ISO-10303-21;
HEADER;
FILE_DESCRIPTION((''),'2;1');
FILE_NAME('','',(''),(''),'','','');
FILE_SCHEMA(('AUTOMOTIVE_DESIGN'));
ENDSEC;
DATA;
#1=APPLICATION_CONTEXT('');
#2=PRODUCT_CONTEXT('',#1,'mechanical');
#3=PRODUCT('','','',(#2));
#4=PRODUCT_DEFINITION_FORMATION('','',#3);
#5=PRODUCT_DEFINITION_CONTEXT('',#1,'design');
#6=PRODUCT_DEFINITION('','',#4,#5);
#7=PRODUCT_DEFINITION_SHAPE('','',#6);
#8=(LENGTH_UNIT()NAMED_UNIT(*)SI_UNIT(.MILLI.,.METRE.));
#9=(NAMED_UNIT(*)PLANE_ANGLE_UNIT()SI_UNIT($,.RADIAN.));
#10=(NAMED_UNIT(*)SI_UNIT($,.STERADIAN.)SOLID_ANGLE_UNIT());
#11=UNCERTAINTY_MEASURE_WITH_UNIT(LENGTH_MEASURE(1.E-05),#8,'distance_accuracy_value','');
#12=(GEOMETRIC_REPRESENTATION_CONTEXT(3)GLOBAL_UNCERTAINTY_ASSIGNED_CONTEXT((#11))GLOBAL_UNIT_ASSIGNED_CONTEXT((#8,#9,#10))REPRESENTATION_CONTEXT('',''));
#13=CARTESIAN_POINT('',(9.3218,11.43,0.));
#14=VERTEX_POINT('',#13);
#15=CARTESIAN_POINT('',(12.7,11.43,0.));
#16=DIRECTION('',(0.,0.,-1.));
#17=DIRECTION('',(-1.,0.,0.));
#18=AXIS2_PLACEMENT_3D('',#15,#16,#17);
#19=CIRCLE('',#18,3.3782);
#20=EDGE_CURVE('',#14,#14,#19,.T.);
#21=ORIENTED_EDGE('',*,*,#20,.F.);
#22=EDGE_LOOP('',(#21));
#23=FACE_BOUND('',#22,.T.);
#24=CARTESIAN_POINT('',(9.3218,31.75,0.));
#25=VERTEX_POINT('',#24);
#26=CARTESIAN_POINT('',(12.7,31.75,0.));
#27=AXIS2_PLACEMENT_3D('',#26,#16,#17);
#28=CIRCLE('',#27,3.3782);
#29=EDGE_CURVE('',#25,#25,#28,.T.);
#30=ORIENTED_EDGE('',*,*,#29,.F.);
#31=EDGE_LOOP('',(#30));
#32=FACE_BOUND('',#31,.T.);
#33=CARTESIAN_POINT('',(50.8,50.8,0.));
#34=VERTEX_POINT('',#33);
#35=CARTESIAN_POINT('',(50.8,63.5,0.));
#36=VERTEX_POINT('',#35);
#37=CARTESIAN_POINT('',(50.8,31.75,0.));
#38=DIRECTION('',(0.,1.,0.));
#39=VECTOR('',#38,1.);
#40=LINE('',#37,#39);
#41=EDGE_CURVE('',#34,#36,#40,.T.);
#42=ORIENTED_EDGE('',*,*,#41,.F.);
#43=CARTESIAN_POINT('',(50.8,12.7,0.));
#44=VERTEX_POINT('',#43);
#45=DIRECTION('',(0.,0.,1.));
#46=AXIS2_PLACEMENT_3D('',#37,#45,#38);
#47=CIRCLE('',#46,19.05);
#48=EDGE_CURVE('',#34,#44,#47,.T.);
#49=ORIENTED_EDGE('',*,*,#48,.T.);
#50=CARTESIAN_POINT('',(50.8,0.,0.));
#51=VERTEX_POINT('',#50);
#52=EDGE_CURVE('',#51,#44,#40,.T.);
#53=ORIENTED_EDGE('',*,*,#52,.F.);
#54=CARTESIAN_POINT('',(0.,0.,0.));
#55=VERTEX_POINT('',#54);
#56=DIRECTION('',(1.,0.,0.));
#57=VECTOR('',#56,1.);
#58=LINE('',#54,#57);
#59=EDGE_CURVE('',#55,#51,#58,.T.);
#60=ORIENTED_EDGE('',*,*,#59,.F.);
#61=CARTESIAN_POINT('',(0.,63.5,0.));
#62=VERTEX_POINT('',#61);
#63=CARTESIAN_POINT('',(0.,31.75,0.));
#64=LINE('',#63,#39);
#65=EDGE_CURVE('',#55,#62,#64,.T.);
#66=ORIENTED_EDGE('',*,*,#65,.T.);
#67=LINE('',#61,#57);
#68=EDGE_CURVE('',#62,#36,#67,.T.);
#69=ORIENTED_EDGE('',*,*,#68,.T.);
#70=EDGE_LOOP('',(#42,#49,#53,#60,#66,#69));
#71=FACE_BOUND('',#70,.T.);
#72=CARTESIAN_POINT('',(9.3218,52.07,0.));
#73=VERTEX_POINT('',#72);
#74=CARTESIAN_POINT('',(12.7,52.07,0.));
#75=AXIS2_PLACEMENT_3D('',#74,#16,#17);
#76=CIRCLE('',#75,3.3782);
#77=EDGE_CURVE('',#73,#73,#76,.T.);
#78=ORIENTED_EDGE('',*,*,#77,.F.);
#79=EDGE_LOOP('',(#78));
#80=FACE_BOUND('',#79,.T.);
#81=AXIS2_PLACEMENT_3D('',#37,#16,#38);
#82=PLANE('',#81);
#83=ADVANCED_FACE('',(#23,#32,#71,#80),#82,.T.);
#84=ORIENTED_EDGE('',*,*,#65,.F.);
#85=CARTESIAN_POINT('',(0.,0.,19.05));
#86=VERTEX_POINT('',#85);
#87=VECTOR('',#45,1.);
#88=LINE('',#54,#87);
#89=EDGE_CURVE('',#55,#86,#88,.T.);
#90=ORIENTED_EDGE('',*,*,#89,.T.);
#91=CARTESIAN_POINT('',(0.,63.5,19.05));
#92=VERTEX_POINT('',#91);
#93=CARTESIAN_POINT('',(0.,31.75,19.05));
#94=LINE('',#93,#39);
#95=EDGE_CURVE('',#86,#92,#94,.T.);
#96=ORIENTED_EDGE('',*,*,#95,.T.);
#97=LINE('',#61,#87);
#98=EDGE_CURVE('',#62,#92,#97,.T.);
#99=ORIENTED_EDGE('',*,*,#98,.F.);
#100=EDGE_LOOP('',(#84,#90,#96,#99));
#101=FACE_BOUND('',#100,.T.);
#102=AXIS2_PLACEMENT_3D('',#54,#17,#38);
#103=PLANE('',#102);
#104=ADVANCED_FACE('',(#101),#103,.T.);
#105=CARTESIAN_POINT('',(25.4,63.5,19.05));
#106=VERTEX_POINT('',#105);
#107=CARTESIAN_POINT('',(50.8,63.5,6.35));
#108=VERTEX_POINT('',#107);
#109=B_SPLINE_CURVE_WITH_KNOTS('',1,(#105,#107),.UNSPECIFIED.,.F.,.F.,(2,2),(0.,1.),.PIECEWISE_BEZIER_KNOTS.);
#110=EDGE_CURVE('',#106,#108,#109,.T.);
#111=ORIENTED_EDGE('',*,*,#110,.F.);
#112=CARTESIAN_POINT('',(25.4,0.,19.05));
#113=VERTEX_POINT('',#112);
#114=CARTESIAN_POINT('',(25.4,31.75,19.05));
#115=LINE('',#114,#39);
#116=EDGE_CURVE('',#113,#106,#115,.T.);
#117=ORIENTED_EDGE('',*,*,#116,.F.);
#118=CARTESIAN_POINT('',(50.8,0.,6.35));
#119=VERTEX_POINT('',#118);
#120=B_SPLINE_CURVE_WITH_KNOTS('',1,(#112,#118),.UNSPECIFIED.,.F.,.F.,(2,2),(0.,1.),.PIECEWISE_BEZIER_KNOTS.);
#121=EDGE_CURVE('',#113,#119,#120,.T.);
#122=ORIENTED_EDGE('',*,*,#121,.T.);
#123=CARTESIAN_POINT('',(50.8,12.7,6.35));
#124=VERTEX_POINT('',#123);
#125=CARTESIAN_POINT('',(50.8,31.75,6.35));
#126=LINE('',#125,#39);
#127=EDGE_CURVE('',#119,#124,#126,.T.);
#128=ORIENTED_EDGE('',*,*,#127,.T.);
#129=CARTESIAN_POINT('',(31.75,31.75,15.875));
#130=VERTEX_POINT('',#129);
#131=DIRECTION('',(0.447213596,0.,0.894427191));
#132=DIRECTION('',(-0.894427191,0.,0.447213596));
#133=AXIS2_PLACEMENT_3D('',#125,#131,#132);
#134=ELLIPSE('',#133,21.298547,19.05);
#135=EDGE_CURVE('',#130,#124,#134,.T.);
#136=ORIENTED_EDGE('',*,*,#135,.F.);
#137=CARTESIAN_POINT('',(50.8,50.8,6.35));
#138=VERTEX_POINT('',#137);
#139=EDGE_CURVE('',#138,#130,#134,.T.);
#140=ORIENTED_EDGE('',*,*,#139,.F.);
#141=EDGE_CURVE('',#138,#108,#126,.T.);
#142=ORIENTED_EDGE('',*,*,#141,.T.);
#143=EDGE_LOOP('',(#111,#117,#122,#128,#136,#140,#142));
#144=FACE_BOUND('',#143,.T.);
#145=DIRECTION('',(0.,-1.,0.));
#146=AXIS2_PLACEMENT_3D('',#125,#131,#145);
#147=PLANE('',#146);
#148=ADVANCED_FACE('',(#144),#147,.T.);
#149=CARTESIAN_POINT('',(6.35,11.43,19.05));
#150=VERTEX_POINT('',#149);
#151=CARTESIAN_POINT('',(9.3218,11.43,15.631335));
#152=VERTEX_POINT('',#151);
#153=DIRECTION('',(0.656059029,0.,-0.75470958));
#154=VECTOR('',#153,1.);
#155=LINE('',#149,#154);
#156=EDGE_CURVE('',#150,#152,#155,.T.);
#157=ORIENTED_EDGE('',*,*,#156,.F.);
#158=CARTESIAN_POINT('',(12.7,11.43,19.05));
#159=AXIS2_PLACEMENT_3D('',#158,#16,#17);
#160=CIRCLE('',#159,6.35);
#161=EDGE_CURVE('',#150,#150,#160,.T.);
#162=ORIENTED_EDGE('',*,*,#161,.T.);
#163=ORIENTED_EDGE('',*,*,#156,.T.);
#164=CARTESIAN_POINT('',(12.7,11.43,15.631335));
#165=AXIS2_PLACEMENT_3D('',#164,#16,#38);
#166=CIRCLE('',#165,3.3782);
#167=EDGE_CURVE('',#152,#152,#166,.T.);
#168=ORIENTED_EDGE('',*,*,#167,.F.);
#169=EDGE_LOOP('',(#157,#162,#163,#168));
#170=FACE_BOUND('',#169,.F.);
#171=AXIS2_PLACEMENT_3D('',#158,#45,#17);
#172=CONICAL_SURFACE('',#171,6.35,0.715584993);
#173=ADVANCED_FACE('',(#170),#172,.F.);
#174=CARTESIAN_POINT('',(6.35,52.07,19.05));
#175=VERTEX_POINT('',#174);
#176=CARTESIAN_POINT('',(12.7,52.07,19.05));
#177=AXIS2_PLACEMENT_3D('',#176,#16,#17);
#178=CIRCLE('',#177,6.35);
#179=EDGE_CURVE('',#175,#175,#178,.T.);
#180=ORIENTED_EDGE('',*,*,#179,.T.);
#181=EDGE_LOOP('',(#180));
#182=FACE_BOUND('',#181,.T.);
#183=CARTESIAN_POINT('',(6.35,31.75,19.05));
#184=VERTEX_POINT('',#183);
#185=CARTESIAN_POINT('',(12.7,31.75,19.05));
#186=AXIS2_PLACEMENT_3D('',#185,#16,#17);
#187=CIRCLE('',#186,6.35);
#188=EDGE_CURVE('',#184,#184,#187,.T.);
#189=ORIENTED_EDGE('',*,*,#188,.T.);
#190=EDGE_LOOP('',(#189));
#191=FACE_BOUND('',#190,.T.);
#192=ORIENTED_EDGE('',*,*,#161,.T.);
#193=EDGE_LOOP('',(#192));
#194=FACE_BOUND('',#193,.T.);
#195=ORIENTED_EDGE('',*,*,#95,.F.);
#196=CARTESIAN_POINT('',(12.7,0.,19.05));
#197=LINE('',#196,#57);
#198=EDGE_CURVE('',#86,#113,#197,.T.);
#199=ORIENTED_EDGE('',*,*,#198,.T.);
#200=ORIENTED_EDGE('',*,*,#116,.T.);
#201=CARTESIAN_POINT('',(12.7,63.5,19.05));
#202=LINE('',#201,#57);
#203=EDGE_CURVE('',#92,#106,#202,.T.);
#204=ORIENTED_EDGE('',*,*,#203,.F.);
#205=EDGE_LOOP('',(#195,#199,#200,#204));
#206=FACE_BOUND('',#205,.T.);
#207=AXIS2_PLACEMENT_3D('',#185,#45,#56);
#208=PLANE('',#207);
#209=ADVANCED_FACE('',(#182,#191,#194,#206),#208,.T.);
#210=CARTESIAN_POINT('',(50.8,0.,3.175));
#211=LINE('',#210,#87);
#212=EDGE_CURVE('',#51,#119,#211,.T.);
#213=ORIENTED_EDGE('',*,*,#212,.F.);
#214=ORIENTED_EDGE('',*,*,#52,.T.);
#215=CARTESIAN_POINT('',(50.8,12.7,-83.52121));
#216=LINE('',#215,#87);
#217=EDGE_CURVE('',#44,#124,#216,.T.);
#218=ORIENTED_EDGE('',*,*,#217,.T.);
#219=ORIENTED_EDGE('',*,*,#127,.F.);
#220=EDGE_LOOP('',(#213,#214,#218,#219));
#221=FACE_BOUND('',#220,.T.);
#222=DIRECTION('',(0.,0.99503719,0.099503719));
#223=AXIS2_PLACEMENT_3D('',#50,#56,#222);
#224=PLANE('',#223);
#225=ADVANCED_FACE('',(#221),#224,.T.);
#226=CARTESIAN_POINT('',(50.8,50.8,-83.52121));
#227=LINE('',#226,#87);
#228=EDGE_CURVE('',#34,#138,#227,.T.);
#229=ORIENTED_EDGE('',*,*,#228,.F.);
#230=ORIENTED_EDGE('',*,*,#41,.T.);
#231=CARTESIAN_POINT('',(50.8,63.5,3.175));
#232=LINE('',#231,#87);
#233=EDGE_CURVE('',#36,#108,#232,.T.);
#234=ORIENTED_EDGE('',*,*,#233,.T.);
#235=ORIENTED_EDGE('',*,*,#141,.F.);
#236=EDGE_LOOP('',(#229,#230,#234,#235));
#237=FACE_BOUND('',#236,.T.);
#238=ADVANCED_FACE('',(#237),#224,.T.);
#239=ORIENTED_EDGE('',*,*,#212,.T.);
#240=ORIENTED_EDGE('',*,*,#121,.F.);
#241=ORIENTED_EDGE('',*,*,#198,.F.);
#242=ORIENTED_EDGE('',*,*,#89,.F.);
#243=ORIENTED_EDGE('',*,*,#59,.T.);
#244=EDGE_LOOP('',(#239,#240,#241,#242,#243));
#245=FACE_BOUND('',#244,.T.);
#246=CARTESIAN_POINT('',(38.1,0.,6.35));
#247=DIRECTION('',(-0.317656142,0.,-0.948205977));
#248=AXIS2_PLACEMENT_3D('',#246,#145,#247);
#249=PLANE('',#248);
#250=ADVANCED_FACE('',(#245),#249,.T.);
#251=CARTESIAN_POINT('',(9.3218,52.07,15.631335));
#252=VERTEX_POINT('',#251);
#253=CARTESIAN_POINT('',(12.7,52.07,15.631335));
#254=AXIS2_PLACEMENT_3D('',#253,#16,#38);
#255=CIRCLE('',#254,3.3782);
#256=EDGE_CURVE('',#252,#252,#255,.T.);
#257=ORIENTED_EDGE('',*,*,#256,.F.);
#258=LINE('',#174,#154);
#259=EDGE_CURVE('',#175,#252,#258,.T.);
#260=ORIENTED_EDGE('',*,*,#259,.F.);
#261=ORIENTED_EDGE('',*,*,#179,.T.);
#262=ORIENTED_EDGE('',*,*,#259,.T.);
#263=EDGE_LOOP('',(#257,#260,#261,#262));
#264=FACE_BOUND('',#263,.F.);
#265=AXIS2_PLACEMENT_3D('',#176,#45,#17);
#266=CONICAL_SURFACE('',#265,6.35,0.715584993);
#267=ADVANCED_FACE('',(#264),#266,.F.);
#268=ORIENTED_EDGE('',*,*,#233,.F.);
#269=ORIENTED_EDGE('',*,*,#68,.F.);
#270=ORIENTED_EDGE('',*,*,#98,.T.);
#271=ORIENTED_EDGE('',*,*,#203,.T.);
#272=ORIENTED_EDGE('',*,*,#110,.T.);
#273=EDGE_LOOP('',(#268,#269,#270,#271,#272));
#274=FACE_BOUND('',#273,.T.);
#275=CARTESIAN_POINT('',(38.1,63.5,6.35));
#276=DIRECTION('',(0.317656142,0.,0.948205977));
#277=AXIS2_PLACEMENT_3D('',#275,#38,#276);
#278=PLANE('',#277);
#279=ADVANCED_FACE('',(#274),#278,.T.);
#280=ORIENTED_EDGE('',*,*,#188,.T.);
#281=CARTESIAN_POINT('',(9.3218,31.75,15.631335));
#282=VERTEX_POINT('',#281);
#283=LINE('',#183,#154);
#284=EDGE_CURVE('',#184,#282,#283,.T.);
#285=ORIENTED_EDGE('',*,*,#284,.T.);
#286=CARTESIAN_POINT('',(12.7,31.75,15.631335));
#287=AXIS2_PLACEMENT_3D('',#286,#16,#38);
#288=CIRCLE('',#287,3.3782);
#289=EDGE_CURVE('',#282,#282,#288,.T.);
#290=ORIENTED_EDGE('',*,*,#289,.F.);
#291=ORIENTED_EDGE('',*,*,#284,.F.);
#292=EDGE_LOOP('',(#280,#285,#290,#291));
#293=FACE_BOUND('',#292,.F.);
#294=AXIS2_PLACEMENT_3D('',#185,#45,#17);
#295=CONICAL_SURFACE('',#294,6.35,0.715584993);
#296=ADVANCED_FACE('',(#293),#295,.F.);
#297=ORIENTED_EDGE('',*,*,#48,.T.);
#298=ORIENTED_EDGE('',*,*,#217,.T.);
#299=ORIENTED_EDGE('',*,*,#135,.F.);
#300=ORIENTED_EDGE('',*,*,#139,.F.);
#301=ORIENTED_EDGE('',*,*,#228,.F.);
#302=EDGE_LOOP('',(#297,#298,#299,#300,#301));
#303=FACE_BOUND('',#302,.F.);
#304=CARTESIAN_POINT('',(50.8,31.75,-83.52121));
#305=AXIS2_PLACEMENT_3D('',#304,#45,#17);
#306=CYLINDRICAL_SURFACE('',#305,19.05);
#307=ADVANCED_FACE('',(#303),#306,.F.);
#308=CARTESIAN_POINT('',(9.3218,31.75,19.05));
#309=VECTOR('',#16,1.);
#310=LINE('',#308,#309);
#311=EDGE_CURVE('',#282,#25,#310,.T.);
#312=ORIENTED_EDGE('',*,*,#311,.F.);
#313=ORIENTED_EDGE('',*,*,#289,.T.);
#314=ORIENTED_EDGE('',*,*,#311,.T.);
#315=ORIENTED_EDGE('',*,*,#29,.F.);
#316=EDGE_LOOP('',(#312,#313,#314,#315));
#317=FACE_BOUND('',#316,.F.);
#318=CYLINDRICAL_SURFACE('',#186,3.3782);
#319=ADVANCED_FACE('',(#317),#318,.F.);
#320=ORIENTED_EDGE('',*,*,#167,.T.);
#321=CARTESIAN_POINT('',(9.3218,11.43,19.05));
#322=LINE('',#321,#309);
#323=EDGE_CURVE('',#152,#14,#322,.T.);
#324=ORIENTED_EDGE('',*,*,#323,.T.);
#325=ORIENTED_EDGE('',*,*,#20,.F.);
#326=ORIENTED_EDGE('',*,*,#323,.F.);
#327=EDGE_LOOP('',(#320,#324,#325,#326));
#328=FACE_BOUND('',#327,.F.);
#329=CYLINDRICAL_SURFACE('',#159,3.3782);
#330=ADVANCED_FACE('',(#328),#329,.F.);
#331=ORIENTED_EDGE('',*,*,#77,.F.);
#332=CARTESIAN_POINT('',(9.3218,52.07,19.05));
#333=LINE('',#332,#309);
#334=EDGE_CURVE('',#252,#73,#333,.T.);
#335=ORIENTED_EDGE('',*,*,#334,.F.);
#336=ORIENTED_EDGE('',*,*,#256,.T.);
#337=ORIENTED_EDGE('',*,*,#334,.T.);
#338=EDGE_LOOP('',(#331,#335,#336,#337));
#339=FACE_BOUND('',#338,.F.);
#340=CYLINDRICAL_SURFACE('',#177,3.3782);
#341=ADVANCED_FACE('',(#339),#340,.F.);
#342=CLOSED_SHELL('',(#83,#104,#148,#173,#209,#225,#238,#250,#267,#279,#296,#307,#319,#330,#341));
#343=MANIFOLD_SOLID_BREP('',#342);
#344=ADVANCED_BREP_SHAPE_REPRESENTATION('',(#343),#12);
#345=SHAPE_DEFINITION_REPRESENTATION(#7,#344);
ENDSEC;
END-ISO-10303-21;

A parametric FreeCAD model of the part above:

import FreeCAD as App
import Part
import Sketcher

V = App.Vector
Q = App.Units.Quantity


def add_polygon(sketch, points):
    """Adds a closed chain of lines whose ends are joined by coincident constraints."""
    first, n = sketch.GeometryCount, len(points)
    for a, b in zip(points, points[1:] + points[:1]):
        sketch.addGeometry(Part.LineSegment(App.Vector(*a, 0), App.Vector(*b, 0)), False)
    for i in range(n):
        sketch.addConstraint(Sketcher.Constraint("Coincident", first + i, 2, first + (i + 1) % n, 1))

doc = App.newDocument("Part")
params = doc.addObject("Spreadsheet::Sheet", "Params")
for row, (alias, value) in enumerate([
    ("sketch1_width", "1 in"),
    ("sketch1_height", "2.5 in"),
    ("pad1_length", "0.75 in"),
    ("sketch2_width", "2.5 in"),
    ("sketch2_height", "0.75 in"),
    ("sketch3_width", "2.5 in"),
    ("sketch3_height", "0.25 in"),
    ("sketch4_diameter", "1.5 in"),
    ("hole_diameter", "1.5 in"),
    ("sketch5_diameter", "0.266 in"),
    ("hole2_diameter", "0.266 in"),
    ("hole2_csink_diameter", "0.5 in"),
], start=1):
    params.set(f"A{row}", alias)
    params.set(f"B{row}", "=" + value)
    params.setAlias(f"B{row}", alias)

body = doc.addObject("PartDesign::Body", "Body")

sketch1 = doc.addObject("Sketcher::SketchObject", "Sketch")
body.addObject(sketch1)
sketch1.AttachmentSupport = (doc.XY_Plane, [""])
sketch1.MapMode = "FlatFace"
add_polygon(sketch1, [(0, 64), (0, 0), (25, 0), (25, 64)])
sketch1.addConstraint([
    Sketcher.Constraint("Vertical", 0),
    Sketcher.Constraint("Horizontal", 1),
    Sketcher.Constraint("Vertical", 2),
    Sketcher.Constraint("Horizontal", 3),
    Sketcher.Constraint("Coincident", 0, 2, -1, 1),
    Sketcher.Constraint("DistanceX", 1, 1, 1, 2, Q("1 in")),
    Sketcher.Constraint("DistanceY", 0, 2, 0, 1, Q("2.5 in")),
])
sketch1.setExpression("Constraints[9]", "Params.sketch1_width")
sketch1.setExpression("Constraints[10]", "Params.sketch1_height")
pad1 = doc.addObject("PartDesign::Pad", "Pad")
body.addObject(pad1)
pad1.Profile = sketch1
pad1.setExpression("Length", "Params.pad1_length")

sketch2 = doc.addObject("Sketcher::SketchObject", "Sketch001")
body.addObject(sketch2)
sketch2.AttachmentSupport = (doc.YZ_Plane, [""])
sketch2.MapMode = "FlatFace"
sketch2.AttachmentOffset = App.Placement(V(0, 0, 1 * 25.4), App.Rotation())
add_polygon(sketch2, [(0, 19), (0, 0), (64, 0), (64, 19)])
sketch2.addConstraint([
    Sketcher.Constraint("Vertical", 0),
    Sketcher.Constraint("Horizontal", 1),
    Sketcher.Constraint("Vertical", 2),
    Sketcher.Constraint("Horizontal", 3),
    Sketcher.Constraint("Coincident", 0, 2, -1, 1),
    Sketcher.Constraint("DistanceX", 1, 1, 1, 2, Q("2.5 in")),
    Sketcher.Constraint("DistanceY", 0, 2, 0, 1, Q("0.75 in")),
])
sketch2.setExpression("Constraints[9]", "Params.sketch2_width")
sketch2.setExpression("Constraints[10]", "Params.sketch2_height")

sketch3 = doc.addObject("Sketcher::SketchObject", "Sketch002")
body.addObject(sketch3)
sketch3.AttachmentSupport = (doc.YZ_Plane, [""])
sketch3.MapMode = "FlatFace"
sketch3.AttachmentOffset = App.Placement(V(0, 0, 2 * 25.4), App.Rotation())
add_polygon(sketch3, [(0, 6), (0, 0), (64, 0), (64, 6)])
sketch3.addConstraint([
    Sketcher.Constraint("Vertical", 0),
    Sketcher.Constraint("Horizontal", 1),
    Sketcher.Constraint("Vertical", 2),
    Sketcher.Constraint("Horizontal", 3),
    Sketcher.Constraint("Coincident", 0, 2, -1, 1),
    Sketcher.Constraint("DistanceX", 1, 1, 1, 2, Q("2.5 in")),
    Sketcher.Constraint("DistanceY", 0, 2, 0, 1, Q("0.25 in")),
])
sketch3.setExpression("Constraints[9]", "Params.sketch3_width")
sketch3.setExpression("Constraints[10]", "Params.sketch3_height")

additiveloft = doc.addObject("PartDesign::AdditiveLoft", "AdditiveLoft")
body.addObject(additiveloft)
additiveloft.Profile = sketch2
additiveloft.Sections = [sketch3]

sketch4 = doc.addObject("Sketcher::SketchObject", "Sketch003")
body.addObject(sketch4)
sketch4.AttachmentSupport = (doc.XY_Plane, [""])
sketch4.MapMode = "FlatFace"
sketch4.addGeometry(Part.Circle(V(51, 32, 0), V(0, 0, 1), 19), False)
sketch4.addConstraint([
    Sketcher.Constraint("Diameter", 0, Q("1.5 in")),
    Sketcher.Constraint("DistanceX", -1, 1, 0, 3, Q("2 in")),
    Sketcher.Constraint("DistanceY", -1, 1, 0, 3, Q("1.25 in")),
])
sketch4.setExpression("Constraints[0]", "Params.sketch4_diameter")
doc.recompute()
hole = doc.addObject("PartDesign::Hole", "Hole")
body.addObject(hole)
hole.Profile = sketch4
hole.ThreadType = "None"
hole.setExpression("Diameter", "Params.hole_diameter")
hole.DepthType = "ThroughAll"
hole.Reversed = True

sketch5 = doc.addObject("Sketcher::SketchObject", "Sketch004")
body.addObject(sketch5)
sketch5.AttachmentSupport = (doc.XY_Plane, [""])
sketch5.MapMode = "FlatFace"
sketch5.AttachmentOffset = App.Placement(V(0, 0, 0.75 * 25.4), App.Rotation())
sketch5.addGeometry([
    Part.Circle(V(12.7, 52.1, 0), V(0, 0, 1), 3.4),
    Part.Circle(V(12.7, 31.8, 0), V(0, 0, 1), 3.4),
    Part.Circle(V(12.7, 11.4, 0), V(0, 0, 1), 3.4),
], False)
sketch5.addConstraint([
    Sketcher.Constraint("Equal", 0, 1),
    Sketcher.Constraint("Equal", 1, 2),
    Sketcher.Constraint("Vertical", 0, 3, 1, 3),
    Sketcher.Constraint("Vertical", 1, 3, 2, 3),
    Sketcher.Constraint("Diameter", 0, Q("0.266 in")),
    Sketcher.Constraint("DistanceX", -1, 1, 0, 3, Q("0.5 in")),
    Sketcher.Constraint("DistanceY", 1, 3, 0, 3, Q("0.8 in")),
    Sketcher.Constraint("DistanceY", 2, 3, 1, 3, Q("0.8 in")),
    Sketcher.Constraint("DistanceY", -1, 1, 0, 3, Q("2.05 in")),
])
sketch5.setExpression("Constraints[4]", "Params.sketch5_diameter")
doc.recompute()
hole2 = doc.addObject("PartDesign::Hole", "Hole001")
body.addObject(hole2)
hole2.Profile = sketch5
hole2.ThreadType = "None"
hole2.setExpression("Diameter", "Params.hole2_diameter")
hole2.DepthType = "ThroughAll"
hole2.HoleCutType = "Countersink"
hole2.setExpression("HoleCutDiameter", "Params.hole2_csink_diameter")
hole2.HoleCutCountersinkAngle = 82

doc.recompute()
